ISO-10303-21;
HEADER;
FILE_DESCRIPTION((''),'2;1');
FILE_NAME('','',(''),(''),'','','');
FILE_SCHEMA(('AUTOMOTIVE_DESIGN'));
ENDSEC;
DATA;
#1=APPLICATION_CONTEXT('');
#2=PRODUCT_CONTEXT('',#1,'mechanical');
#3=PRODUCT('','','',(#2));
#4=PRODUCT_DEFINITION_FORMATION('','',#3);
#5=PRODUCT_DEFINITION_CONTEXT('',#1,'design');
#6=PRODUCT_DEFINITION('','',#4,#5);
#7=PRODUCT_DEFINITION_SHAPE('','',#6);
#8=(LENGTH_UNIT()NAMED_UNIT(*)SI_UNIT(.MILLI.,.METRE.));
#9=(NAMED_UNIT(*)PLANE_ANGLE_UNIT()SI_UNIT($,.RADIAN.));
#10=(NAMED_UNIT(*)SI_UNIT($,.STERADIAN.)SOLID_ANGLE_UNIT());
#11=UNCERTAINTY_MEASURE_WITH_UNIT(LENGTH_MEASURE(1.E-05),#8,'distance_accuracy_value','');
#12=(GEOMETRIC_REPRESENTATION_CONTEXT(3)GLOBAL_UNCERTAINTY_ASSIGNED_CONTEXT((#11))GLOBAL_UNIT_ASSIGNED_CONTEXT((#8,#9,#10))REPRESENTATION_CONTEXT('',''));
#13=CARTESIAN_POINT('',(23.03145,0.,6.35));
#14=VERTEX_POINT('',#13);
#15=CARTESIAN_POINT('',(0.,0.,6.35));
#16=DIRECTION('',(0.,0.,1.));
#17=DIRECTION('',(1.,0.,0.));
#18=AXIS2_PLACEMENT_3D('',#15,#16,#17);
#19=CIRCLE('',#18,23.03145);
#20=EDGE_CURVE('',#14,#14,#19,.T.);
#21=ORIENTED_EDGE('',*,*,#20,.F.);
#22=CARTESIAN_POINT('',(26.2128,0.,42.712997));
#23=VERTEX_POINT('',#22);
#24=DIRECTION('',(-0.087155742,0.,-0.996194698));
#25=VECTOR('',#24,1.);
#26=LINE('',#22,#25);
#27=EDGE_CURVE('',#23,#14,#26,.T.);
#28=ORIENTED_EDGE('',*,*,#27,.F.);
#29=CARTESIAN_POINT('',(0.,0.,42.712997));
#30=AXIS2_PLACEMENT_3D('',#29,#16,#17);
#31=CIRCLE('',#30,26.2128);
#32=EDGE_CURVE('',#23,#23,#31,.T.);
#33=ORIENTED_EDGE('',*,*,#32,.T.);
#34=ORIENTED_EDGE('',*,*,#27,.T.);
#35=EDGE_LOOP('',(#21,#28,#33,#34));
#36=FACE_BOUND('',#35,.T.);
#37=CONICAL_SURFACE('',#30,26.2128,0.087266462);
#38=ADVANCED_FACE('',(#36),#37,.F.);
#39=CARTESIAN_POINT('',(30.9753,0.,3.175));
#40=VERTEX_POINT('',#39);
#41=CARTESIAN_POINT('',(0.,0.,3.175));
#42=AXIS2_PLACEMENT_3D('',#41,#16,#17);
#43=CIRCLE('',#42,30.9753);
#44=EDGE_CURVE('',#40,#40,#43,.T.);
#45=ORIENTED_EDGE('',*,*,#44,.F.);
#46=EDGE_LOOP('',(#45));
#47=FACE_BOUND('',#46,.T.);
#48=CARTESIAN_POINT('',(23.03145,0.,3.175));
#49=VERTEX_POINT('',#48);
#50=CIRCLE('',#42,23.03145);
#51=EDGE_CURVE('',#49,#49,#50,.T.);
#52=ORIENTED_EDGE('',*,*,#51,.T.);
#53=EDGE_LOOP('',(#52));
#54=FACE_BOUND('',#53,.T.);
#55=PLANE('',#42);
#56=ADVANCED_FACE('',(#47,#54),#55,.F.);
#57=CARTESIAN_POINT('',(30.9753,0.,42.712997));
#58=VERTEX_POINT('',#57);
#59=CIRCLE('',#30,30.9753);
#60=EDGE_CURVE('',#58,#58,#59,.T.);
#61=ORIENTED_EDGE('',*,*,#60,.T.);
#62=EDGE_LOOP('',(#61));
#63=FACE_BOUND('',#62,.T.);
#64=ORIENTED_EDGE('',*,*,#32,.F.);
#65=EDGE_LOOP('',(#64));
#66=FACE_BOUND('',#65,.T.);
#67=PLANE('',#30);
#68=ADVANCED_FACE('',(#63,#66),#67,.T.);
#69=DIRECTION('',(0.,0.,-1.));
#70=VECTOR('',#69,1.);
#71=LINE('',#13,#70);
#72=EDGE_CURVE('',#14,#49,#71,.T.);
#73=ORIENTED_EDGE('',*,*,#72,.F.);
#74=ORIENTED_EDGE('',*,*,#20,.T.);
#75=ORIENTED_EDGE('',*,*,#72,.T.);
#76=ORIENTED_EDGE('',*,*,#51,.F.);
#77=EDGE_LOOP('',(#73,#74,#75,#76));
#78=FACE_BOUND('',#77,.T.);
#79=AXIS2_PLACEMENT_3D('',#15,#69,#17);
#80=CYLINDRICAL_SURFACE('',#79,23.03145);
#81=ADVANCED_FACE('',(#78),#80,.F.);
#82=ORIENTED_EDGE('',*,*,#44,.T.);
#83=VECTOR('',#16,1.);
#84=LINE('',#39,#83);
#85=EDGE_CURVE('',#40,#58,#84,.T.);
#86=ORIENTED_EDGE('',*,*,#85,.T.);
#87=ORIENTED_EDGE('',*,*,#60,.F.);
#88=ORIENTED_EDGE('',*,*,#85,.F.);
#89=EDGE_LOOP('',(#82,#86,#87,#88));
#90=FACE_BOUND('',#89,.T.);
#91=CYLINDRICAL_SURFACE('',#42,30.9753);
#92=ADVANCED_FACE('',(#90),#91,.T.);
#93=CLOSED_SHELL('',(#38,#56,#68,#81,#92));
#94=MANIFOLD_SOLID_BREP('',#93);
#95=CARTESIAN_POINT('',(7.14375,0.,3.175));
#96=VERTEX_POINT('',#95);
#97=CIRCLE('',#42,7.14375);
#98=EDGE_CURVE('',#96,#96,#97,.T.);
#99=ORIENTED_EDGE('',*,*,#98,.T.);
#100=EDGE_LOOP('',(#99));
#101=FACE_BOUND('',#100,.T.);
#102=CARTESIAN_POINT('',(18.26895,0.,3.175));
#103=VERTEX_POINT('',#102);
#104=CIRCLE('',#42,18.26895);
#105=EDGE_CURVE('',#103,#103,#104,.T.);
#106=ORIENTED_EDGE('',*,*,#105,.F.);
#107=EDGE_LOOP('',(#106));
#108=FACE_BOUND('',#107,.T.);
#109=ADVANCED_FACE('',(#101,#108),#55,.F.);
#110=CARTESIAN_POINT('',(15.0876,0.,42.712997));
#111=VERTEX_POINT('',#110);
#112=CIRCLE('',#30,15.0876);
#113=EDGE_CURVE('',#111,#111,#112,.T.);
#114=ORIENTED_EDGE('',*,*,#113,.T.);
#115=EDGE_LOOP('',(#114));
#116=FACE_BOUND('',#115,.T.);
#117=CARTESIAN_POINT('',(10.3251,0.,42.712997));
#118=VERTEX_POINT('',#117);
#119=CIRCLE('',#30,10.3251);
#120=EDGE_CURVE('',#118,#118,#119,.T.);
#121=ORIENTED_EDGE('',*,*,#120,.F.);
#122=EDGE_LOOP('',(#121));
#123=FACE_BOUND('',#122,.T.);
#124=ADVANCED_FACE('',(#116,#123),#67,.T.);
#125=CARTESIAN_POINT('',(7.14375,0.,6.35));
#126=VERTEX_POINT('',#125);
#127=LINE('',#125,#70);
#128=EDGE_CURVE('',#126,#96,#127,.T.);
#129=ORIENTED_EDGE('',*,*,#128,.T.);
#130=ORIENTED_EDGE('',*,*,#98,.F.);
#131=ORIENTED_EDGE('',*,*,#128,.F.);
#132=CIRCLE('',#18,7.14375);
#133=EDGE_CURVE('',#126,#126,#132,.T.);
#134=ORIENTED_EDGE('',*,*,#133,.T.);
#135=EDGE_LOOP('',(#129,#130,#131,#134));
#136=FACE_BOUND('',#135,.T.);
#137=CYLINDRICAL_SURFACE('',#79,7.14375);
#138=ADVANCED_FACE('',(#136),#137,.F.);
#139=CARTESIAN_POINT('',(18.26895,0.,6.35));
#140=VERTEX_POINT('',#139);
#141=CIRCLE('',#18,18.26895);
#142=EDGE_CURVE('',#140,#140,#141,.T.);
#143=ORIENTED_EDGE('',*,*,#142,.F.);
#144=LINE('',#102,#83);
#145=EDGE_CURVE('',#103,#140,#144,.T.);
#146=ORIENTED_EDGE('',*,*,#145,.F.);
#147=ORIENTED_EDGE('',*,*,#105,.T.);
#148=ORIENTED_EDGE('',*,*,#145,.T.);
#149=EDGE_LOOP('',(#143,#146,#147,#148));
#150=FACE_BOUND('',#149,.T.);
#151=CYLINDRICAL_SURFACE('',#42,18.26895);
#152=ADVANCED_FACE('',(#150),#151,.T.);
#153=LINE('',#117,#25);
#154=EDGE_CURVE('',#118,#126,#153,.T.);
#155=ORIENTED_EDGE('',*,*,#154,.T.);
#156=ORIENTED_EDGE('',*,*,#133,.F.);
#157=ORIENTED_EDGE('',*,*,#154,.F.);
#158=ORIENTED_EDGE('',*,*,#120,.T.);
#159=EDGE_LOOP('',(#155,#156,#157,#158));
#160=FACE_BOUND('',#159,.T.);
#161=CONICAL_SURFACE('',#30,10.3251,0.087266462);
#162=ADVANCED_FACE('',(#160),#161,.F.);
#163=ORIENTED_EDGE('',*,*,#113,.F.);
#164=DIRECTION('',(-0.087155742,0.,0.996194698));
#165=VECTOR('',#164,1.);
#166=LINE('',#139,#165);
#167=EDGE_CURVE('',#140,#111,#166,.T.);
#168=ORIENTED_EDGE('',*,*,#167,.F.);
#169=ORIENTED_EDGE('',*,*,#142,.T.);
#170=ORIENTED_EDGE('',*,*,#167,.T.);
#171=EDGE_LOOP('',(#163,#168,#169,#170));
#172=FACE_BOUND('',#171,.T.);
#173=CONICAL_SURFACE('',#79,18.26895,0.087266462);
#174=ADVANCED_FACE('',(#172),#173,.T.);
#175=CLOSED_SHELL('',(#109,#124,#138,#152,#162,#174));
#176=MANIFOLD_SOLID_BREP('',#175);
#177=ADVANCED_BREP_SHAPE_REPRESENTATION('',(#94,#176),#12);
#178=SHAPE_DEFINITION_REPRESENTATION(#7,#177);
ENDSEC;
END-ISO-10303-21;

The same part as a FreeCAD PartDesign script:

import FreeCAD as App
import Part
import Sketcher
Q = App.Units.Quantity

doc = App.newDocument("Part")
body = doc.addObject("PartDesign::Body", "Body")
body.AllowCompound = True

# Sketch on XZ plane
sketch1 = doc.addObject("Sketcher::SketchObject", "Sketch")
body.addObject(sketch1)
sketch1.AttachmentSupport = (doc.XZ_Plane, [""])
sketch1.MapMode = "FlatFace"
sketch1.addGeometry([
    Part.LineSegment(App.Vector(10.3, 42.7, 0), App.Vector(7.1, 6.3, 0)),  # 0
    Part.LineSegment(App.Vector(7.1, 6.3, 0), App.Vector(7.1, 3.2, 0)),  # 1
    Part.LineSegment(App.Vector(7.1, 3.2, 0), App.Vector(18.3, 3.2, 0)),  # 2
    Part.LineSegment(App.Vector(18.3, 3.2, 0), App.Vector(18.3, 6.3, 0)),  # 3
    Part.LineSegment(App.Vector(18.3, 6.3, 0), App.Vector(15.1, 42.7, 0)),  # 4
    Part.LineSegment(App.Vector(15.1, 42.7, 0), App.Vector(10.3, 42.7, 0)),  # 5
    Part.LineSegment(App.Vector(23, 3.2, 0), App.Vector(31, 3.2, 0)),  # 6
    Part.LineSegment(App.Vector(31, 3.2, 0), App.Vector(31, 42.7, 0)),  # 7
    Part.LineSegment(App.Vector(31, 42.7, 0), App.Vector(26.2, 42.7, 0)),  # 8
    Part.LineSegment(App.Vector(26.2, 42.7, 0), App.Vector(23, 6.3, 0)),  # 9
    Part.LineSegment(App.Vector(23, 6.3, 0), App.Vector(23, 3.2, 0)),  # 10
], False)
sketch1.addConstraint([
    Sketcher.Constraint("Coincident", 0, 2, 1, 1),
    Sketcher.Constraint("Coincident", 1, 2, 2, 1),
    Sketcher.Constraint("Coincident", 2, 2, 3, 1),
    Sketcher.Constraint("Coincident", 3, 2, 4, 1),
    Sketcher.Constraint("Coincident", 4, 2, 5, 1),
    Sketcher.Constraint("Coincident", 5, 2, 0, 1),
    Sketcher.Constraint("Coincident", 6, 2, 7, 1),
    Sketcher.Constraint("Coincident", 7, 2, 8, 1),
    Sketcher.Constraint("Coincident", 8, 2, 9, 1),
    Sketcher.Constraint("Coincident", 9, 2, 10, 1),
    Sketcher.Constraint("Coincident", 10, 2, 6, 1),
    Sketcher.Constraint("Vertical", 1),
    Sketcher.Constraint("Horizontal", 2),
    Sketcher.Constraint("Vertical", 3),
    Sketcher.Constraint("Horizontal", 5),
    Sketcher.Constraint("Horizontal", 6),
    Sketcher.Constraint("Vertical", 7),
    Sketcher.Constraint("Horizontal", 8),
    Sketcher.Constraint("Vertical", 10),
    Sketcher.Constraint("Parallel", 0, 9),
    Sketcher.Constraint("Horizontal", 0, 2, 3, 2),
    Sketcher.Constraint("Horizontal", 2, 2, 6, 2),
    Sketcher.Constraint("Horizontal", 5, 2, 7, 2),
    Sketcher.Constraint("Horizontal", 3, 2, 9, 2),
    Sketcher.Constraint("Equal", 5, 8),
    Sketcher.Constraint("Equal", 0, 4),
    Sketcher.Constraint("Angle", 0, Q("-95 deg")),
    Sketcher.Constraint("DistanceX", 2, 1, 2, 2, Q("0.438 in")),
    Sketcher.Constraint("DistanceX", 5, 2, 5, 1, Q("0.1875 in")),
    Sketcher.Constraint("DistanceY", 1, 2, 1, 1, Q("0.125 in")),
    Sketcher.Constraint("DistanceY", -1, 1, 0, 2, Q("0.25 in")),
    Sketcher.Constraint("DistanceX", -1, 1, 0, 2, Q("0.28125 in")),
    Sketcher.Constraint("DistanceX", -1, 1, 8, 2, Q("1.032 in")),
])
revolution = doc.addObject("PartDesign::Revolution", "Revolution")
body.addObject(revolution)
revolution.Profile = sketch1
revolution.ReferenceAxis = (sketch1, ["V_Axis"])
revolution.Angle = 360

doc.recompute()
